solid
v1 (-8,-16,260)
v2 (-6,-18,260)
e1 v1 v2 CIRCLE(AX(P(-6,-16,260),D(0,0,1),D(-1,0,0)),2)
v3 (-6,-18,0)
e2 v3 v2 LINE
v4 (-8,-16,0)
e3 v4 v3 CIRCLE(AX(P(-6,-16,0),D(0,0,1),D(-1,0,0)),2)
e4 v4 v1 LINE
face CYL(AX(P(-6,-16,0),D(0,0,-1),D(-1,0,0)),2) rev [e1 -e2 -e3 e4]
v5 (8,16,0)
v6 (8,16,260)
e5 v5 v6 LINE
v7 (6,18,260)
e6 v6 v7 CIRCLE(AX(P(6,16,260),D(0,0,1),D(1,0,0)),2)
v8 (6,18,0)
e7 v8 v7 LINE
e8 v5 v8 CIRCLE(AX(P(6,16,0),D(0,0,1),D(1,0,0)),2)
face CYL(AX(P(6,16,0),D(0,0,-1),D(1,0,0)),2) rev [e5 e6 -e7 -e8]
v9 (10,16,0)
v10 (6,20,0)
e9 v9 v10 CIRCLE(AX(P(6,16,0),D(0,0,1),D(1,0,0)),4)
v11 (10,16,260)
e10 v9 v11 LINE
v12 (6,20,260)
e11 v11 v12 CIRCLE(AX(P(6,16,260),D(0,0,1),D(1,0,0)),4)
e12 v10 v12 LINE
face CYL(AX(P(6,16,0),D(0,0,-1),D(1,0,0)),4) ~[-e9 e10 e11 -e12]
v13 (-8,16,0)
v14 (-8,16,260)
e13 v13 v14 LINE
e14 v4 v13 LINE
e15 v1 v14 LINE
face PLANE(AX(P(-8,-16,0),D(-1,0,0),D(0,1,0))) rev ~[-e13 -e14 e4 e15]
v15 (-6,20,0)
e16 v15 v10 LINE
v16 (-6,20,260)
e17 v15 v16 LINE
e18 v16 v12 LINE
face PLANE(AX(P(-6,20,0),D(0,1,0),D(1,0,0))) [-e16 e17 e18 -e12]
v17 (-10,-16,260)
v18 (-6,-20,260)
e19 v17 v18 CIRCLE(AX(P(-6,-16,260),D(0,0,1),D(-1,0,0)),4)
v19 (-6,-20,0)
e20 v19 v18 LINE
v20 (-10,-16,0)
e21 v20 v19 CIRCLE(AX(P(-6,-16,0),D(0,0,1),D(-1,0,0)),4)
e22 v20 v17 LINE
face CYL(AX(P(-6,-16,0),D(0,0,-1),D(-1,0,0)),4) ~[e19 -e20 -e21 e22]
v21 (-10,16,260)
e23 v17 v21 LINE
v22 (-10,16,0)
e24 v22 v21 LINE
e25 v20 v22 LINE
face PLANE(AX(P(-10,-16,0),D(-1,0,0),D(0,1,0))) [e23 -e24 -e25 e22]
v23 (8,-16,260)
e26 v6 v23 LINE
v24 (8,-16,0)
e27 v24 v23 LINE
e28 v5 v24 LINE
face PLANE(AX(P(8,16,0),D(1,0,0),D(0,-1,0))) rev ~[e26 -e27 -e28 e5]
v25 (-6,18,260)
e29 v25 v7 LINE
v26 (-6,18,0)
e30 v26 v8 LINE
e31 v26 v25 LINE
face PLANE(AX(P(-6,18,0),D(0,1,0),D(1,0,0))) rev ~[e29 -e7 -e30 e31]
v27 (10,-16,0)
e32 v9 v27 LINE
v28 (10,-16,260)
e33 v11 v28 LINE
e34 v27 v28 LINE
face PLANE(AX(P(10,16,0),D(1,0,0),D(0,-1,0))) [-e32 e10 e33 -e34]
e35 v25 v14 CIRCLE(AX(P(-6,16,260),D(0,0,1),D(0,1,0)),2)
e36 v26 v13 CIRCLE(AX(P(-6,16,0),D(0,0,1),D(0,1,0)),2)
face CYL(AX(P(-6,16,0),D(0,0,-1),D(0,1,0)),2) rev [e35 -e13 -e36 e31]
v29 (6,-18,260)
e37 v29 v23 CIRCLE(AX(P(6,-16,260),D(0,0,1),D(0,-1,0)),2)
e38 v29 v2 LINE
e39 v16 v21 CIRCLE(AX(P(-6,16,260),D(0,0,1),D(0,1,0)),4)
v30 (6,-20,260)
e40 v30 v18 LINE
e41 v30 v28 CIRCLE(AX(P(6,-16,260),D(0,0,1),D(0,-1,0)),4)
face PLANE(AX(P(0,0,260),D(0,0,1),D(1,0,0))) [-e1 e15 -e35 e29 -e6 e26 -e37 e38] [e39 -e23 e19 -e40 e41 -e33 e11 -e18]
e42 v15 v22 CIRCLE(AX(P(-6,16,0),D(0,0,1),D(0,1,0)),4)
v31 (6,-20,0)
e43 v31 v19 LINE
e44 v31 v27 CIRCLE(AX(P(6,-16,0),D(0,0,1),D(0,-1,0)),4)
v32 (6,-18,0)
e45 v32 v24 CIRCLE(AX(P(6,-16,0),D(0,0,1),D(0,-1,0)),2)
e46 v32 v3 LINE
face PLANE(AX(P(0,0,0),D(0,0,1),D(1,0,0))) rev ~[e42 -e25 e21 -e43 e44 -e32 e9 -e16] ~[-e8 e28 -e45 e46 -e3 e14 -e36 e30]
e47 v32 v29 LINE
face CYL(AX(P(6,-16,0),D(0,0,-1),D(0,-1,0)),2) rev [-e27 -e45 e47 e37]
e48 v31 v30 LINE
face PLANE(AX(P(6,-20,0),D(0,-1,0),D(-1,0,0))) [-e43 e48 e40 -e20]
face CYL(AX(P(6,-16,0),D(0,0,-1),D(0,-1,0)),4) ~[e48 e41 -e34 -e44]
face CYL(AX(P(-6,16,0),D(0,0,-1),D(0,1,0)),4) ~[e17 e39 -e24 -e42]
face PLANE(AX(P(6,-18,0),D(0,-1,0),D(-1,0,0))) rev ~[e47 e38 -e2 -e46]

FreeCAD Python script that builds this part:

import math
import FreeCAD as App
import Part
import Sketcher
Q = App.Units.Quantity

doc = App.newDocument("Part")
body = doc.addObject("PartDesign::Body", "Body")

# Sketch on XY plane
sketch1 = body.newObject("Sketcher::SketchObject", "Sketch")
sketch1.AttachmentSupport = (doc.getObject("XY_Plane"), [""])
sketch1.MapMode = "FlatFace"
sketch1.addGeometry([
    Part.LineSegment(App.Vector(-10, 16, 0), App.Vector(-10, -16, 0)),  # 0
    Part.ArcOfCircle(Part.Circle(App.Vector(-6, -16, 0), App.Vector(0, 0, 1), 4), math.radians(180), math.radians(270)),  # 1
    Part.LineSegment(App.Vector(-6, -20, 0), App.Vector(6, -20, 0)),  # 2
    Part.ArcOfCircle(Part.Circle(App.Vector(6, -16, 0), App.Vector(0, 0, 1), 4), math.radians(-90), math.radians(0)),  # 3
    Part.LineSegment(App.Vector(10, -16, 0), App.Vector(10, 16, 0)),  # 4
    Part.ArcOfCircle(Part.Circle(App.Vector(6, 16, 0), App.Vector(0, 0, 1), 4), math.radians(0), math.radians(90)),  # 5
    Part.LineSegment(App.Vector(6, 20, 0), App.Vector(-6, 20, 0)),  # 6
    Part.ArcOfCircle(Part.Circle(App.Vector(-6, 16, 0), App.Vector(0, 0, 1), 4), math.radians(90), math.radians(180)),  # 7
    Part.ArcOfCircle(Part.Circle(App.Vector(-6, 16, 0), App.Vector(0, 0, 1), 2), math.radians(90), math.radians(180)),  # 8
    Part.LineSegment(App.Vector(-6, 18, 0), App.Vector(6, 18, 0)),  # 9
    Part.ArcOfCircle(Part.Circle(App.Vector(6, 16, 0), App.Vector(0, 0, 1), 2), math.radians(0), math.radians(90)),  # 10
    Part.LineSegment(App.Vector(8, 16, 0), App.Vector(8, -16, 0)),  # 11
    Part.ArcOfCircle(Part.Circle(App.Vector(6, -16, 0), App.Vector(0, 0, 1), 2), math.radians(-90), math.radians(0)),  # 12
    Part.LineSegment(App.Vector(6, -18, 0), App.Vector(-6, -18, 0)),  # 13
    Part.ArcOfCircle(Part.Circle(App.Vector(-6, -16, 0), App.Vector(0, 0, 1), 2), math.radians(180), math.radians(270)),  # 14
    Part.LineSegment(App.Vector(-8, -16, 0), App.Vector(-8, 16, 0)),  # 15
], False)
sketch1.addConstraint([
    Sketcher.Constraint("Tangent", 0, 2, 1, 1),
    Sketcher.Constraint("Tangent", 1, 2, 2, 1),
    Sketcher.Constraint("Tangent", 2, 2, 3, 1),
    Sketcher.Constraint("Tangent", 3, 2, 4, 1),
    Sketcher.Constraint("Tangent", 4, 2, 5, 1),
    Sketcher.Constraint("Tangent", 5, 2, 6, 1),
    Sketcher.Constraint("Tangent", 6, 2, 7, 1),
    Sketcher.Constraint("Tangent", 7, 2, 0, 1),
    Sketcher.Constraint("Tangent", 8, 1, 9, 1),
    Sketcher.Constraint("Tangent", 9, 2, 10, 2),
    Sketcher.Constraint("Tangent", 10, 1, 11, 1),
    Sketcher.Constraint("Tangent", 11, 2, 12, 2),
    Sketcher.Constraint("Tangent", 12, 1, 13, 1),
    Sketcher.Constraint("Tangent", 13, 2, 14, 2),
    Sketcher.Constraint("Tangent", 14, 1, 15, 1),
    Sketcher.Constraint("Tangent", 15, 2, 8, 2),
    Sketcher.Constraint("Vertical", 0),
    Sketcher.Constraint("Horizontal", 2),
    Sketcher.Constraint("Vertical", 4),
    Sketcher.Constraint("Horizontal", 6),
    Sketcher.Constraint("Horizontal", 9),
    Sketcher.Constraint("Vertical", 11),
    Sketcher.Constraint("Horizontal", 13),
    Sketcher.Constraint("Vertical", 15),
    Sketcher.Constraint("Coincident", 8, 3, 7, 3),
    Sketcher.Constraint("Coincident", 10, 3, 5, 3),
    Sketcher.Constraint("Coincident", 12, 3, 3, 3),
    Sketcher.Constraint("Equal", 1, 3),
    Sketcher.Constraint("Equal", 3, 5),
    Sketcher.Constraint("Equal", 5, 7),
    Sketcher.Constraint("Equal", 12, 14),
    Sketcher.Constraint("Symmetric", 1, 3, 5, 3, -1, 1),
    Sketcher.Constraint("Radius", 1, Q("4 mm")),
    Sketcher.Constraint("Radius", 8, Q("2 mm")),
    Sketcher.Constraint("DistanceX", 0, 2, -1, 1, Q("10 mm")),
    Sketcher.Constraint("DistanceY", 1, 2, -1, 1, Q("20 mm")),
])
pad1 = body.newObject("PartDesign::Pad", "Pad")
pad1.Profile = sketch1
pad1.Length = 260

doc.recompute()
